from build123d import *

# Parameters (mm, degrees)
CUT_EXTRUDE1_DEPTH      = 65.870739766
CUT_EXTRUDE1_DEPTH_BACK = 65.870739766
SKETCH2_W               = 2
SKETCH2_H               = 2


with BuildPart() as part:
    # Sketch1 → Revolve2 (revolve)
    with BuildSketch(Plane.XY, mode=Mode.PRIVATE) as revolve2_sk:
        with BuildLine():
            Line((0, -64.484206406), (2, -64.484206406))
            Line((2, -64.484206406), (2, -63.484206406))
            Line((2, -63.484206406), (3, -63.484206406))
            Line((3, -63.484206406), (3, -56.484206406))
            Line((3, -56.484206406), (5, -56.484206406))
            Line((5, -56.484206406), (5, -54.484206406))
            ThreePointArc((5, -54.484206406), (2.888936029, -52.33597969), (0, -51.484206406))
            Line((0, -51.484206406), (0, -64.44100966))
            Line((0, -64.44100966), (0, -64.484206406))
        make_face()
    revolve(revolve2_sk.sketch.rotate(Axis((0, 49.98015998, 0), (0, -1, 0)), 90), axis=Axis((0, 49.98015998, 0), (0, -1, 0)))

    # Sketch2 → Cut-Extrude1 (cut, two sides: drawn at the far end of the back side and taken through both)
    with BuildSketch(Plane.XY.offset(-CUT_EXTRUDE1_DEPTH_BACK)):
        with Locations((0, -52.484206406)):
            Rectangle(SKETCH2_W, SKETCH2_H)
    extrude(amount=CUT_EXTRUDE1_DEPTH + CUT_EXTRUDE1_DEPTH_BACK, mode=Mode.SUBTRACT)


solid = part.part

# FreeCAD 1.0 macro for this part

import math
import FreeCAD as App
import Part
import Sketcher
Q = App.Units.Quantity

doc = App.newDocument("Part")
params = doc.addObject("Spreadsheet::Sheet", "Params")
for row, (alias, value) in enumerate([
    ("sketch1_radius", "6 mm"),
    ("sketch1_width", "2 mm"),
    ("sketch1_width2", "1 mm"),
    ("sketch1_height", "7 mm"),
    ("sketch1_height2", "13 mm"),
    ("revolution_angle", "360 deg"),
    ("sketch2_width", "2 mm"),
], start=1):
    params.set(f"A{row}", alias)
    params.set(f"B{row}", "=" + value)
    params.setAlias(f"B{row}", alias)

body = doc.addObject("PartDesign::Body", "Body")

# Sketch on XY plane
sketch1 = body.newObject("Sketcher::SketchObject", "Sketch")
sketch1.AttachmentSupport = (doc.getObject("XY_Plane"), [""])
sketch1.MapMode = "FlatFace"
sketch1.addGeometry([
    Part.LineSegment(App.Vector(0, -64.484206, 0), App.Vector(2, -64.484206, 0)),  # 0
    Part.LineSegment(App.Vector(2, -64.484206, 0), App.Vector(2, -63.484206, 0)),  # 1
    Part.LineSegment(App.Vector(2, -63.484206, 0), App.Vector(3, -63.484206, 0)),  # 2
    Part.LineSegment(App.Vector(3, -63.484206, 0), App.Vector(3, -56.484206, 0)),  # 3
    Part.LineSegment(App.Vector(3, -56.484206, 0), App.Vector(5, -56.484206, 0)),  # 4
    Part.LineSegment(App.Vector(5, -56.484206, 0), App.Vector(5, -54.484206, 0)),  # 5
    Part.ArcOfCircle(Part.Circle(App.Vector(-0.198039, -57.480937, 0), App.Vector(0, 0, 1), 6), math.radians(29.963959), math.radians(88.108528)),  # 6
    Part.LineSegment(App.Vector(0, -51.484206, 0), App.Vector(0, -64.484206, 0)),  # 7
], False)
sketch1.addConstraint([
    Sketcher.Constraint("Coincident", 0, 2, 1, 1),
    Sketcher.Constraint("Coincident", 1, 2, 2, 1),
    Sketcher.Constraint("Coincident", 2, 2, 3, 1),
    Sketcher.Constraint("Coincident", 3, 2, 4, 1),
    Sketcher.Constraint("Coincident", 4, 2, 5, 1),
    Sketcher.Constraint("Coincident", 5, 2, 6, 1),
    Sketcher.Constraint("Coincident", 6, 2, 7, 1),
    Sketcher.Constraint("Coincident", 7, 2, 0, 1),
    Sketcher.Constraint("Horizontal", 0),
    Sketcher.Constraint("Vertical", 1),
    Sketcher.Constraint("Horizontal", 2),
    Sketcher.Constraint("Vertical", 3),
    Sketcher.Constraint("Horizontal", 4),
    Sketcher.Constraint("Vertical", 5),
    Sketcher.Constraint("Vertical", 7),
    Sketcher.Constraint("PointOnObject", 6, 2, -2),
    Sketcher.Constraint("Equal", 0, 4),
    Sketcher.Constraint("Equal", 2, 1),
    Sketcher.Constraint("Equal", 4, 5),
    Sketcher.Constraint("Radius", 6, Q("6 mm")),
    Sketcher.Constraint("DistanceX", 0, 1, 0, 2, Q("2 mm")),
    Sketcher.Constraint("DistanceX", 2, 1, 2, 2, Q("1 mm")),
    Sketcher.Constraint("DistanceY", 3, 1, 3, 2, Q("7 mm")),
    Sketcher.Constraint("DistanceY", 7, 2, 7, 1, Q("13 mm")),
    Sketcher.Constraint("DistanceY", 6, 3, -1, 1, Q("57.480937 mm")),
])
sketch1.setExpression("Constraints[19]", "Params.sketch1_radius")
sketch1.setExpression("Constraints[20]", "Params.sketch1_width")
sketch1.setExpression("Constraints[21]", "Params.sketch1_width2")
sketch1.setExpression("Constraints[22]", "Params.sketch1_height")
sketch1.setExpression("Constraints[23]", "Params.sketch1_height2")
revolution = body.newObject("PartDesign::Revolution", "Revolution")
revolution.Profile = sketch1
revolution.ReferenceAxis = (sketch1, ["V_Axis"])
revolution.setExpression("Angle", "Params.revolution_angle")

# Sketch on XY plane
sketch2 = body.newObject("Sketcher::SketchObject", "Sketch001")
sketch2.AttachmentSupport = (doc.getObject("XY_Plane"), [""])
sketch2.MapMode = "FlatFace"
sketch2.addGeometry([
    Part.LineSegment(App.Vector(-1, -51.484206, 0), App.Vector(-1, -53.484206, 0)),
    Part.LineSegment(App.Vector(-1, -53.484206, 0), App.Vector(1, -53.484206, 0)),
    Part.LineSegment(App.Vector(1, -53.484206, 0), App.Vector(1, -51.484206, 0)),
    Part.LineSegment(App.Vector(1, -51.484206, 0), App.Vector(-1, -51.484206, 0)),
], False)
sketch2.addConstraint([
    Sketcher.Constraint("Coincident", 0, 2, 1, 1),
    Sketcher.Constraint("Coincident", 1, 2, 2, 1),
    Sketcher.Constraint("Coincident", 2, 2, 3, 1),
    Sketcher.Constraint("Coincident", 3, 2, 0, 1),
    Sketcher.Constraint("Vertical", 0),
    Sketcher.Constraint("Horizontal", 1),
    Sketcher.Constraint("Vertical", 2),
    Sketcher.Constraint("Horizontal", 3),
    Sketcher.Constraint("Equal", 3, 0),
    Sketcher.Constraint("DistanceX", 1, 1, 1, 2, Q("2 mm")),
    Sketcher.Constraint("DistanceX", 0, 2, -1, 1, Q("1 mm")),
    Sketcher.Constraint("DistanceY", 0, 2, -1, 1, Q("53.484206 mm")),
])
sketch2.setExpression("Constraints[9]", "Params.sketch2_width")
pocket1 = body.newObject("PartDesign::Pocket", "Pocket")
pocket1.Profile = sketch2
pocket1.Type = "ThroughAll"
pocket1.Midplane = True

doc.recompute()
